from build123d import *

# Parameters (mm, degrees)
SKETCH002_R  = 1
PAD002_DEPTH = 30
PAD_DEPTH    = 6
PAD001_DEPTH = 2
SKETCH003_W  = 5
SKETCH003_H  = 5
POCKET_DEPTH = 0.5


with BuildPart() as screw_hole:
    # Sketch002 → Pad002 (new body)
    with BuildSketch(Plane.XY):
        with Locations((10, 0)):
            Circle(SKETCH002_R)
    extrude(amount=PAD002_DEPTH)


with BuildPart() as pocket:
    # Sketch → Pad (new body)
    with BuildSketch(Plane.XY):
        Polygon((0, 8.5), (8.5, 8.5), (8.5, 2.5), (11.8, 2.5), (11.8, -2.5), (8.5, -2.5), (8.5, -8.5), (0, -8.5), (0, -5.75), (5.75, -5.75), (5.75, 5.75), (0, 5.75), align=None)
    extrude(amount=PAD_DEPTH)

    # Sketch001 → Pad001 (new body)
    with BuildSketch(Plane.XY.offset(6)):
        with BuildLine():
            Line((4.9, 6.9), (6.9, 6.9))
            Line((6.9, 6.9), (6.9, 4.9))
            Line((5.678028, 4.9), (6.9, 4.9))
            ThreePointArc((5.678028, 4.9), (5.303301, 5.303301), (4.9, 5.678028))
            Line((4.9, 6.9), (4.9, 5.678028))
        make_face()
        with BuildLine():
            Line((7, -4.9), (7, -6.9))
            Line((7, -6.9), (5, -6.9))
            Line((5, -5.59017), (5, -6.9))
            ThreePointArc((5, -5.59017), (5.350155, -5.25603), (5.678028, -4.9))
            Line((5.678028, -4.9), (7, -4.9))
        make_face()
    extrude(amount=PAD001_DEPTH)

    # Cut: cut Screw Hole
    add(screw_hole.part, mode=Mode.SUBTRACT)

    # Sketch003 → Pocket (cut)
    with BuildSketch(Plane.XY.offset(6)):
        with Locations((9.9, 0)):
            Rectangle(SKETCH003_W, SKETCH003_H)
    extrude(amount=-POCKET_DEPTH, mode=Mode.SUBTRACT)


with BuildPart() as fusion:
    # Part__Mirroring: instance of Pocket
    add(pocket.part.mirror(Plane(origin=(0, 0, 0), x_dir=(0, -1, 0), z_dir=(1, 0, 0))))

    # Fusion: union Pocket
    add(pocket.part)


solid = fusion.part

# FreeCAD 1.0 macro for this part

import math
import FreeCAD as App
import Part
import Sketcher

V = App.Vector

doc = App.newDocument("Part")
params = doc.addObject("Spreadsheet::Sheet", "Params")
for row, (alias, value) in enumerate([
    ("sketch1_diameter", "2 mm"),
    ("pad1_length", "30 mm"),
    ("sketch2_height", "6 mm"),
    ("sketch2_height2", "5 mm"),
    ("sketch2_width", "8.5 mm"),
    ("sketch2_width2", "3.3 mm"),
    ("sketch2_height3", "11.5 mm"),
    ("pad2_length", "6 mm"),
    ("sketch3_width", "2 mm"),
    ("pad3_length", "2 mm"),
    ("sketch4_width", "5 mm"),
    ("pocket1_length", "0.5 mm"),
], start=1):
    params.set(f"A{row}", alias)
    params.set(f"B{row}", "=" + value)
    params.setAlias(f"B{row}", alias)

body = doc.addObject("PartDesign::Body", "Body")

# Sketch on XY plane
sketch1 = body.newObject("Sketcher::SketchObject", "Sketch")
sketch1.AttachmentSupport = (doc.getObject("XY_Plane"), [""])
sketch1.MapMode = "FlatFace"
sketch1.addGeometry(Part.Circle(V(10, 0, 0), V(0, 0, 1), 1), False)
sketch1.addConstraint(Sketcher.Constraint("PointOnObject", 0, 3, -1))
sketch1.addConstraint(Sketcher.Constraint("Diameter", 0, 2.0))
sketch1.addConstraint(Sketcher.Constraint("DistanceX", -1, 1, 0, 3, 10.0))
sketch1.setExpression("Constraints[1]", "Params.sketch1_diameter")
pad1 = body.newObject("PartDesign::Pad", "Pad")
pad1.Profile = sketch1
pad1.setExpression("Length", "Params.pad1_length")
body2 = doc.addObject("PartDesign::Body", "Body001")

# Sketch on XY plane
sketch2 = body2.newObject("Sketcher::SketchObject", "Sketch001")
sketch2.AttachmentSupport = (doc.getObject("XY_Plane001"), [""])
sketch2.MapMode = "FlatFace"
sketch2.addGeometry(Part.LineSegment(V(8.5, 8.5, 0), V(0, 8.5, 0)), False)
sketch2.addGeometry(Part.LineSegment(V(0, 8.5, 0), V(0, 5.75, 0)), False)
sketch2.addGeometry(Part.LineSegment(V(0, 5.75, 0), V(5.75, 5.75, 0)), False)
sketch2.addGeometry(Part.LineSegment(V(5.75, 5.75, 0), V(5.75, -5.75, 0)), False)
sketch2.addGeometry(Part.LineSegment(V(5.75, -5.75, 0), V(0, -5.75, 0)), False)
sketch2.addGeometry(Part.LineSegment(V(0, -5.75, 0), V(0, -8.5, 0)), False)
sketch2.addGeometry(Part.LineSegment(V(0, -8.5, 0), V(8.5, -8.5, 0)), False)
sketch2.addGeometry(Part.LineSegment(V(8.5, -8.5, 0), V(8.5, -2.5, 0)), False)
sketch2.addGeometry(Part.LineSegment(V(8.5, -2.5, 0), V(11.8, -2.5, 0)), False)
sketch2.addGeometry(Part.LineSegment(V(11.8, -2.5, 0), V(11.8, 2.5, 0)), False)
sketch2.addGeometry(Part.LineSegment(V(11.8, 2.5, 0), V(8.5, 2.5, 0)), False)
sketch2.addGeometry(Part.LineSegment(V(8.5, 2.5, 0), V(8.5, 8.5, 0)), False)
sketch2.addConstraint(Sketcher.Constraint("Coincident", 0, 2, 1, 1))
sketch2.addConstraint(Sketcher.Constraint("Coincident", 1, 2, 2, 1))
sketch2.addConstraint(Sketcher.Constraint("Coincident", 2, 2, 3, 1))
sketch2.addConstraint(Sketcher.Constraint("Coincident", 3, 2, 4, 1))
sketch2.addConstraint(Sketcher.Constraint("Coincident", 4, 2, 5, 1))
sketch2.addConstraint(Sketcher.Constraint("Coincident", 5, 2, 6, 1))
sketch2.addConstraint(Sketcher.Constraint("Coincident", 6, 2, 7, 1))
sketch2.addConstraint(Sketcher.Constraint("Coincident", 7, 2, 8, 1))
sketch2.addConstraint(Sketcher.Constraint("Coincident", 8, 2, 9, 1))
sketch2.addConstraint(Sketcher.Constraint("Coincident", 9, 2, 10, 1))
sketch2.addConstraint(Sketcher.Constraint("Coincident", 10, 2, 11, 1))
sketch2.addConstraint(Sketcher.Constraint("Coincident", 11, 2, 0, 1))
sketch2.addConstraint(Sketcher.Constraint("Horizontal", 0))
sketch2.addConstraint(Sketcher.Constraint("Vertical", 1))
sketch2.addConstraint(Sketcher.Constraint("Horizontal", 2))
sketch2.addConstraint(Sketcher.Constraint("Vertical", 3))
sketch2.addConstraint(Sketcher.Constraint("Horizontal", 4))
sketch2.addConstraint(Sketcher.Constraint("Vertical", 5))
sketch2.addConstraint(Sketcher.Constraint("Horizontal", 6))
sketch2.addConstraint(Sketcher.Constraint("Vertical", 7))
sketch2.addConstraint(Sketcher.Constraint("Horizontal", 8))
sketch2.addConstraint(Sketcher.Constraint("Vertical", 9))
sketch2.addConstraint(Sketcher.Constraint("Horizontal", 10))
sketch2.addConstraint(Sketcher.Constraint("Vertical", 11))
sketch2.addConstraint(Sketcher.Constraint("Symmetric", 1, 2, 4, 2, -1, 1))
sketch2.addConstraint(Sketcher.Constraint("Symmetric", 0, 2, 5, 2, -1))
sketch2.addConstraint(Sketcher.Constraint("Symmetric", 7, 2, 10, 2, -1))
sketch2.addConstraint(Sketcher.Constraint("DistanceY", 7, 1, 7, 2, 6.0))
sketch2.addConstraint(Sketcher.Constraint("DistanceY", 9, 1, 9, 2, 5.0))
sketch2.addConstraint(Sketcher.Constraint("DistanceX", 0, 2, 0, 1, 8.5))
sketch2.addConstraint(Sketcher.Constraint("DistanceX", 8, 1, 8, 2, 3.3))
sketch2.addConstraint(Sketcher.Constraint("DistanceY", 3, 2, 3, 1, 11.5))
sketch2.addConstraint(Sketcher.Constraint("DistanceX", 2, 1, 2, 2, 5.75))
sketch2.setExpression("Constraints[27]", "Params.sketch2_height")
sketch2.setExpression("Constraints[28]", "Params.sketch2_height2")
sketch2.setExpression("Constraints[29]", "Params.sketch2_width")
sketch2.setExpression("Constraints[30]", "Params.sketch2_width2")
sketch2.setExpression("Constraints[31]", "Params.sketch2_height3")
pad2 = body2.newObject("PartDesign::Pad", "Pad001")
pad2.Profile = sketch2
pad2.setExpression("Length", "Params.pad2_length")

# Sketch on XY plane
sketch3 = body2.newObject("Sketcher::SketchObject", "Sketch002")
sketch3.AttachmentSupport = (doc.getObject("XY_Plane001"), [""])
sketch3.MapMode = "FlatFace"
sketch3.AttachmentOffset = App.Placement(V(0, 0, 6), App.Rotation())
sketch3.addGeometry(Part.LineSegment(V(6.9, 6.9, 0), V(4.9, 6.9, 0)), False)
sketch3.addGeometry(Part.LineSegment(V(4.9, 6.9, 0), V(4.9, 5.678028, 0)), False)
sketch3.addGeometry(Part.ArcOfCircle(Part.Circle(V(0.000018, 0.000018, 0), V(0, 0, 1), 7.499975), math.radians(40.79338), math.radians(49.20662)), False)
sketch3.addGeometry(Part.LineSegment(V(5.678028, 4.9, 0), V(6.9, 4.9, 0)), False)
sketch3.addGeometry(Part.LineSegment(V(6.9, 4.9, 0), V(6.9, 6.9, 0)), False)
sketch3.addGeometry(Part.LineSegment(V(7, -6.9, 0), V(7, -4.9, 0)), False)
sketch3.addGeometry(Part.LineSegment(V(7, -4.9, 0), V(5.678028, -4.9, 0)), False)
sketch3.addGeometry(Part.ArcOfCircle(Part.Circle(V(0.000197, -0.000192, 0), V(0, 0, 1), 7.499726), math.radians(-48.189826), math.radians(-40.793264)), False)
sketch3.addGeometry(Part.LineSegment(V(5, -5.59017, 0), V(5, -6.9, 0)), False)
sketch3.addGeometry(Part.LineSegment(V(5, -6.9, 0), V(7, -6.9, 0)), False)
sketch3.addConstraint(Sketcher.Constraint("Coincident", 0, 2, 1, 1))
sketch3.addConstraint(Sketcher.Constraint("Coincident", 1, 2, 2, 2))
sketch3.addConstraint(Sketcher.Constraint("Coincident", 2, 1, 3, 1))
sketch3.addConstraint(Sketcher.Constraint("Coincident", 3, 2, 4, 1))
sketch3.addConstraint(Sketcher.Constraint("Coincident", 4, 2, 0, 1))
sketch3.addConstraint(Sketcher.Constraint("Coincident", 5, 2, 6, 1))
sketch3.addConstraint(Sketcher.Constraint("Coincident", 6, 2, 7, 2))
sketch3.addConstraint(Sketcher.Constraint("Coincident", 7, 1, 8, 1))
sketch3.addConstraint(Sketcher.Constraint("Coincident", 8, 2, 9, 1))
sketch3.addConstraint(Sketcher.Constraint("Coincident", 9, 2, 5, 1))
sketch3.addConstraint(Sketcher.Constraint("Horizontal", 0))
sketch3.addConstraint(Sketcher.Constraint("Vertical", 1))
sketch3.addConstraint(Sketcher.Constraint("Horizontal", 3))
sketch3.addConstraint(Sketcher.Constraint("Vertical", 4))
sketch3.addConstraint(Sketcher.Constraint("Vertical", 5))
sketch3.addConstraint(Sketcher.Constraint("Horizontal", 6))
sketch3.addConstraint(Sketcher.Constraint("Vertical", 8))
sketch3.addConstraint(Sketcher.Constraint("Horizontal", 9))
sketch3.addConstraint(Sketcher.Constraint("Symmetric", 2, 1, 6, 2, -1))
sketch3.addConstraint(Sketcher.Constraint("Equal", 0, 9))
sketch3.addConstraint(Sketcher.Constraint("Equal", 3, 1))
sketch3.addConstraint(Sketcher.Constraint("Equal", 9, 4))
sketch3.addConstraint(Sketcher.Constraint("Equal", 4, 5))
sketch3.addConstraint(Sketcher.Constraint("DistanceX", 0, 2, 0, 1, 2.0))
sketch3.addConstraint(Sketcher.Constraint("DistanceX", -1, 1, 5, 2, 7.0))
sketch3.addConstraint(Sketcher.Constraint("DistanceX", -1, 1, 0, 2, 4.9))
sketch3.addConstraint(Sketcher.Constraint("DistanceY", -1, 1, 0, 2, 6.9))
sketch3.addConstraint(Sketcher.Constraint("Radius", 2, 7.499975))
sketch3.addConstraint(Sketcher.Constraint("Radius", 7, 7.499726))
sketch3.addConstraint(Sketcher.Constraint("DistanceX", 6, 2, 6, 1, 1.321972))
sketch3.addConstraint(Sketcher.Constraint("DistanceY", 8, 2, 8, 1, 1.30983))
sketch3.setExpression("Constraints[23]", "Params.sketch3_width")
pad3 = body2.newObject("PartDesign::Pad", "Pad002")
pad3.Profile = sketch3
pad3.setExpression("Length", "Params.pad3_length")
doc.recompute()

boolean = body2.newObject("PartDesign::Boolean", "Boolean")
boolean.Type = "Cut"
boolean.addObjects([body])

# Sketch on XY plane
sketch4 = body2.newObject("Sketcher::SketchObject", "Sketch003")
sketch4.AttachmentSupport = (doc.getObject("XY_Plane001"), [""])
sketch4.MapMode = "FlatFace"
sketch4.AttachmentOffset = App.Placement(V(0, 0, 6), App.Rotation())
sketch4.addGeometry(Part.LineSegment(V(7.4, 2.5, 0), V(7.4, -2.5, 0)), False)
sketch4.addGeometry(Part.LineSegment(V(7.4, -2.5, 0), V(12.4, -2.5, 0)), False)
sketch4.addGeometry(Part.LineSegment(V(12.4, -2.5, 0), V(12.4, 2.5, 0)), False)
sketch4.addGeometry(Part.LineSegment(V(12.4, 2.5, 0), V(7.4, 2.5, 0)), False)
sketch4.addConstraint(Sketcher.Constraint("Coincident", 0, 2, 1, 1))
sketch4.addConstraint(Sketcher.Constraint("Coincident", 1, 2, 2, 1))
sketch4.addConstraint(Sketcher.Constraint("Coincident", 2, 2, 3, 1))
sketch4.addConstraint(Sketcher.Constraint("Coincident", 3, 2, 0, 1))
sketch4.addConstraint(Sketcher.Constraint("Vertical", 0))
sketch4.addConstraint(Sketcher.Constraint("Horizontal", 1))
sketch4.addConstraint(Sketcher.Constraint("Vertical", 2))
sketch4.addConstraint(Sketcher.Constraint("Horizontal", 3))
sketch4.addConstraint(Sketcher.Constraint("Equal", 3, 0))
sketch4.addConstraint(Sketcher.Constraint("DistanceX", 1, 1, 1, 2, 5.0))
sketch4.addConstraint(Sketcher.Constraint("DistanceX", -1, 1, 0, 2, 7.4))
sketch4.addConstraint(Sketcher.Constraint("DistanceY", 0, 2, -1, 1, 2.5))
sketch4.setExpression("Constraints[9]", "Params.sketch4_width")
pocket1 = body2.newObject("PartDesign::Pocket", "Pocket")
pocket1.Profile = sketch4
pocket1.setExpression("Length", "Params.pocket1_length")
body3 = doc.addObject("PartDesign::Body", "Body002")
doc.recompute()

mirroring = doc.addObject("Part::Mirroring", "Mirroring")
mirroring.Source = body2
mirroring.Base = V(0, 0, 0)
mirroring.Normal = V(1, 0, 0)
body3.BaseFeature = mirroring
doc.recompute()

boolean2 = body3.newObject("PartDesign::Boolean", "Boolean001")
boolean2.Type = "Fuse"
boolean2.addObjects([body2])
mirroring.Visibility = False

doc.recompute()
